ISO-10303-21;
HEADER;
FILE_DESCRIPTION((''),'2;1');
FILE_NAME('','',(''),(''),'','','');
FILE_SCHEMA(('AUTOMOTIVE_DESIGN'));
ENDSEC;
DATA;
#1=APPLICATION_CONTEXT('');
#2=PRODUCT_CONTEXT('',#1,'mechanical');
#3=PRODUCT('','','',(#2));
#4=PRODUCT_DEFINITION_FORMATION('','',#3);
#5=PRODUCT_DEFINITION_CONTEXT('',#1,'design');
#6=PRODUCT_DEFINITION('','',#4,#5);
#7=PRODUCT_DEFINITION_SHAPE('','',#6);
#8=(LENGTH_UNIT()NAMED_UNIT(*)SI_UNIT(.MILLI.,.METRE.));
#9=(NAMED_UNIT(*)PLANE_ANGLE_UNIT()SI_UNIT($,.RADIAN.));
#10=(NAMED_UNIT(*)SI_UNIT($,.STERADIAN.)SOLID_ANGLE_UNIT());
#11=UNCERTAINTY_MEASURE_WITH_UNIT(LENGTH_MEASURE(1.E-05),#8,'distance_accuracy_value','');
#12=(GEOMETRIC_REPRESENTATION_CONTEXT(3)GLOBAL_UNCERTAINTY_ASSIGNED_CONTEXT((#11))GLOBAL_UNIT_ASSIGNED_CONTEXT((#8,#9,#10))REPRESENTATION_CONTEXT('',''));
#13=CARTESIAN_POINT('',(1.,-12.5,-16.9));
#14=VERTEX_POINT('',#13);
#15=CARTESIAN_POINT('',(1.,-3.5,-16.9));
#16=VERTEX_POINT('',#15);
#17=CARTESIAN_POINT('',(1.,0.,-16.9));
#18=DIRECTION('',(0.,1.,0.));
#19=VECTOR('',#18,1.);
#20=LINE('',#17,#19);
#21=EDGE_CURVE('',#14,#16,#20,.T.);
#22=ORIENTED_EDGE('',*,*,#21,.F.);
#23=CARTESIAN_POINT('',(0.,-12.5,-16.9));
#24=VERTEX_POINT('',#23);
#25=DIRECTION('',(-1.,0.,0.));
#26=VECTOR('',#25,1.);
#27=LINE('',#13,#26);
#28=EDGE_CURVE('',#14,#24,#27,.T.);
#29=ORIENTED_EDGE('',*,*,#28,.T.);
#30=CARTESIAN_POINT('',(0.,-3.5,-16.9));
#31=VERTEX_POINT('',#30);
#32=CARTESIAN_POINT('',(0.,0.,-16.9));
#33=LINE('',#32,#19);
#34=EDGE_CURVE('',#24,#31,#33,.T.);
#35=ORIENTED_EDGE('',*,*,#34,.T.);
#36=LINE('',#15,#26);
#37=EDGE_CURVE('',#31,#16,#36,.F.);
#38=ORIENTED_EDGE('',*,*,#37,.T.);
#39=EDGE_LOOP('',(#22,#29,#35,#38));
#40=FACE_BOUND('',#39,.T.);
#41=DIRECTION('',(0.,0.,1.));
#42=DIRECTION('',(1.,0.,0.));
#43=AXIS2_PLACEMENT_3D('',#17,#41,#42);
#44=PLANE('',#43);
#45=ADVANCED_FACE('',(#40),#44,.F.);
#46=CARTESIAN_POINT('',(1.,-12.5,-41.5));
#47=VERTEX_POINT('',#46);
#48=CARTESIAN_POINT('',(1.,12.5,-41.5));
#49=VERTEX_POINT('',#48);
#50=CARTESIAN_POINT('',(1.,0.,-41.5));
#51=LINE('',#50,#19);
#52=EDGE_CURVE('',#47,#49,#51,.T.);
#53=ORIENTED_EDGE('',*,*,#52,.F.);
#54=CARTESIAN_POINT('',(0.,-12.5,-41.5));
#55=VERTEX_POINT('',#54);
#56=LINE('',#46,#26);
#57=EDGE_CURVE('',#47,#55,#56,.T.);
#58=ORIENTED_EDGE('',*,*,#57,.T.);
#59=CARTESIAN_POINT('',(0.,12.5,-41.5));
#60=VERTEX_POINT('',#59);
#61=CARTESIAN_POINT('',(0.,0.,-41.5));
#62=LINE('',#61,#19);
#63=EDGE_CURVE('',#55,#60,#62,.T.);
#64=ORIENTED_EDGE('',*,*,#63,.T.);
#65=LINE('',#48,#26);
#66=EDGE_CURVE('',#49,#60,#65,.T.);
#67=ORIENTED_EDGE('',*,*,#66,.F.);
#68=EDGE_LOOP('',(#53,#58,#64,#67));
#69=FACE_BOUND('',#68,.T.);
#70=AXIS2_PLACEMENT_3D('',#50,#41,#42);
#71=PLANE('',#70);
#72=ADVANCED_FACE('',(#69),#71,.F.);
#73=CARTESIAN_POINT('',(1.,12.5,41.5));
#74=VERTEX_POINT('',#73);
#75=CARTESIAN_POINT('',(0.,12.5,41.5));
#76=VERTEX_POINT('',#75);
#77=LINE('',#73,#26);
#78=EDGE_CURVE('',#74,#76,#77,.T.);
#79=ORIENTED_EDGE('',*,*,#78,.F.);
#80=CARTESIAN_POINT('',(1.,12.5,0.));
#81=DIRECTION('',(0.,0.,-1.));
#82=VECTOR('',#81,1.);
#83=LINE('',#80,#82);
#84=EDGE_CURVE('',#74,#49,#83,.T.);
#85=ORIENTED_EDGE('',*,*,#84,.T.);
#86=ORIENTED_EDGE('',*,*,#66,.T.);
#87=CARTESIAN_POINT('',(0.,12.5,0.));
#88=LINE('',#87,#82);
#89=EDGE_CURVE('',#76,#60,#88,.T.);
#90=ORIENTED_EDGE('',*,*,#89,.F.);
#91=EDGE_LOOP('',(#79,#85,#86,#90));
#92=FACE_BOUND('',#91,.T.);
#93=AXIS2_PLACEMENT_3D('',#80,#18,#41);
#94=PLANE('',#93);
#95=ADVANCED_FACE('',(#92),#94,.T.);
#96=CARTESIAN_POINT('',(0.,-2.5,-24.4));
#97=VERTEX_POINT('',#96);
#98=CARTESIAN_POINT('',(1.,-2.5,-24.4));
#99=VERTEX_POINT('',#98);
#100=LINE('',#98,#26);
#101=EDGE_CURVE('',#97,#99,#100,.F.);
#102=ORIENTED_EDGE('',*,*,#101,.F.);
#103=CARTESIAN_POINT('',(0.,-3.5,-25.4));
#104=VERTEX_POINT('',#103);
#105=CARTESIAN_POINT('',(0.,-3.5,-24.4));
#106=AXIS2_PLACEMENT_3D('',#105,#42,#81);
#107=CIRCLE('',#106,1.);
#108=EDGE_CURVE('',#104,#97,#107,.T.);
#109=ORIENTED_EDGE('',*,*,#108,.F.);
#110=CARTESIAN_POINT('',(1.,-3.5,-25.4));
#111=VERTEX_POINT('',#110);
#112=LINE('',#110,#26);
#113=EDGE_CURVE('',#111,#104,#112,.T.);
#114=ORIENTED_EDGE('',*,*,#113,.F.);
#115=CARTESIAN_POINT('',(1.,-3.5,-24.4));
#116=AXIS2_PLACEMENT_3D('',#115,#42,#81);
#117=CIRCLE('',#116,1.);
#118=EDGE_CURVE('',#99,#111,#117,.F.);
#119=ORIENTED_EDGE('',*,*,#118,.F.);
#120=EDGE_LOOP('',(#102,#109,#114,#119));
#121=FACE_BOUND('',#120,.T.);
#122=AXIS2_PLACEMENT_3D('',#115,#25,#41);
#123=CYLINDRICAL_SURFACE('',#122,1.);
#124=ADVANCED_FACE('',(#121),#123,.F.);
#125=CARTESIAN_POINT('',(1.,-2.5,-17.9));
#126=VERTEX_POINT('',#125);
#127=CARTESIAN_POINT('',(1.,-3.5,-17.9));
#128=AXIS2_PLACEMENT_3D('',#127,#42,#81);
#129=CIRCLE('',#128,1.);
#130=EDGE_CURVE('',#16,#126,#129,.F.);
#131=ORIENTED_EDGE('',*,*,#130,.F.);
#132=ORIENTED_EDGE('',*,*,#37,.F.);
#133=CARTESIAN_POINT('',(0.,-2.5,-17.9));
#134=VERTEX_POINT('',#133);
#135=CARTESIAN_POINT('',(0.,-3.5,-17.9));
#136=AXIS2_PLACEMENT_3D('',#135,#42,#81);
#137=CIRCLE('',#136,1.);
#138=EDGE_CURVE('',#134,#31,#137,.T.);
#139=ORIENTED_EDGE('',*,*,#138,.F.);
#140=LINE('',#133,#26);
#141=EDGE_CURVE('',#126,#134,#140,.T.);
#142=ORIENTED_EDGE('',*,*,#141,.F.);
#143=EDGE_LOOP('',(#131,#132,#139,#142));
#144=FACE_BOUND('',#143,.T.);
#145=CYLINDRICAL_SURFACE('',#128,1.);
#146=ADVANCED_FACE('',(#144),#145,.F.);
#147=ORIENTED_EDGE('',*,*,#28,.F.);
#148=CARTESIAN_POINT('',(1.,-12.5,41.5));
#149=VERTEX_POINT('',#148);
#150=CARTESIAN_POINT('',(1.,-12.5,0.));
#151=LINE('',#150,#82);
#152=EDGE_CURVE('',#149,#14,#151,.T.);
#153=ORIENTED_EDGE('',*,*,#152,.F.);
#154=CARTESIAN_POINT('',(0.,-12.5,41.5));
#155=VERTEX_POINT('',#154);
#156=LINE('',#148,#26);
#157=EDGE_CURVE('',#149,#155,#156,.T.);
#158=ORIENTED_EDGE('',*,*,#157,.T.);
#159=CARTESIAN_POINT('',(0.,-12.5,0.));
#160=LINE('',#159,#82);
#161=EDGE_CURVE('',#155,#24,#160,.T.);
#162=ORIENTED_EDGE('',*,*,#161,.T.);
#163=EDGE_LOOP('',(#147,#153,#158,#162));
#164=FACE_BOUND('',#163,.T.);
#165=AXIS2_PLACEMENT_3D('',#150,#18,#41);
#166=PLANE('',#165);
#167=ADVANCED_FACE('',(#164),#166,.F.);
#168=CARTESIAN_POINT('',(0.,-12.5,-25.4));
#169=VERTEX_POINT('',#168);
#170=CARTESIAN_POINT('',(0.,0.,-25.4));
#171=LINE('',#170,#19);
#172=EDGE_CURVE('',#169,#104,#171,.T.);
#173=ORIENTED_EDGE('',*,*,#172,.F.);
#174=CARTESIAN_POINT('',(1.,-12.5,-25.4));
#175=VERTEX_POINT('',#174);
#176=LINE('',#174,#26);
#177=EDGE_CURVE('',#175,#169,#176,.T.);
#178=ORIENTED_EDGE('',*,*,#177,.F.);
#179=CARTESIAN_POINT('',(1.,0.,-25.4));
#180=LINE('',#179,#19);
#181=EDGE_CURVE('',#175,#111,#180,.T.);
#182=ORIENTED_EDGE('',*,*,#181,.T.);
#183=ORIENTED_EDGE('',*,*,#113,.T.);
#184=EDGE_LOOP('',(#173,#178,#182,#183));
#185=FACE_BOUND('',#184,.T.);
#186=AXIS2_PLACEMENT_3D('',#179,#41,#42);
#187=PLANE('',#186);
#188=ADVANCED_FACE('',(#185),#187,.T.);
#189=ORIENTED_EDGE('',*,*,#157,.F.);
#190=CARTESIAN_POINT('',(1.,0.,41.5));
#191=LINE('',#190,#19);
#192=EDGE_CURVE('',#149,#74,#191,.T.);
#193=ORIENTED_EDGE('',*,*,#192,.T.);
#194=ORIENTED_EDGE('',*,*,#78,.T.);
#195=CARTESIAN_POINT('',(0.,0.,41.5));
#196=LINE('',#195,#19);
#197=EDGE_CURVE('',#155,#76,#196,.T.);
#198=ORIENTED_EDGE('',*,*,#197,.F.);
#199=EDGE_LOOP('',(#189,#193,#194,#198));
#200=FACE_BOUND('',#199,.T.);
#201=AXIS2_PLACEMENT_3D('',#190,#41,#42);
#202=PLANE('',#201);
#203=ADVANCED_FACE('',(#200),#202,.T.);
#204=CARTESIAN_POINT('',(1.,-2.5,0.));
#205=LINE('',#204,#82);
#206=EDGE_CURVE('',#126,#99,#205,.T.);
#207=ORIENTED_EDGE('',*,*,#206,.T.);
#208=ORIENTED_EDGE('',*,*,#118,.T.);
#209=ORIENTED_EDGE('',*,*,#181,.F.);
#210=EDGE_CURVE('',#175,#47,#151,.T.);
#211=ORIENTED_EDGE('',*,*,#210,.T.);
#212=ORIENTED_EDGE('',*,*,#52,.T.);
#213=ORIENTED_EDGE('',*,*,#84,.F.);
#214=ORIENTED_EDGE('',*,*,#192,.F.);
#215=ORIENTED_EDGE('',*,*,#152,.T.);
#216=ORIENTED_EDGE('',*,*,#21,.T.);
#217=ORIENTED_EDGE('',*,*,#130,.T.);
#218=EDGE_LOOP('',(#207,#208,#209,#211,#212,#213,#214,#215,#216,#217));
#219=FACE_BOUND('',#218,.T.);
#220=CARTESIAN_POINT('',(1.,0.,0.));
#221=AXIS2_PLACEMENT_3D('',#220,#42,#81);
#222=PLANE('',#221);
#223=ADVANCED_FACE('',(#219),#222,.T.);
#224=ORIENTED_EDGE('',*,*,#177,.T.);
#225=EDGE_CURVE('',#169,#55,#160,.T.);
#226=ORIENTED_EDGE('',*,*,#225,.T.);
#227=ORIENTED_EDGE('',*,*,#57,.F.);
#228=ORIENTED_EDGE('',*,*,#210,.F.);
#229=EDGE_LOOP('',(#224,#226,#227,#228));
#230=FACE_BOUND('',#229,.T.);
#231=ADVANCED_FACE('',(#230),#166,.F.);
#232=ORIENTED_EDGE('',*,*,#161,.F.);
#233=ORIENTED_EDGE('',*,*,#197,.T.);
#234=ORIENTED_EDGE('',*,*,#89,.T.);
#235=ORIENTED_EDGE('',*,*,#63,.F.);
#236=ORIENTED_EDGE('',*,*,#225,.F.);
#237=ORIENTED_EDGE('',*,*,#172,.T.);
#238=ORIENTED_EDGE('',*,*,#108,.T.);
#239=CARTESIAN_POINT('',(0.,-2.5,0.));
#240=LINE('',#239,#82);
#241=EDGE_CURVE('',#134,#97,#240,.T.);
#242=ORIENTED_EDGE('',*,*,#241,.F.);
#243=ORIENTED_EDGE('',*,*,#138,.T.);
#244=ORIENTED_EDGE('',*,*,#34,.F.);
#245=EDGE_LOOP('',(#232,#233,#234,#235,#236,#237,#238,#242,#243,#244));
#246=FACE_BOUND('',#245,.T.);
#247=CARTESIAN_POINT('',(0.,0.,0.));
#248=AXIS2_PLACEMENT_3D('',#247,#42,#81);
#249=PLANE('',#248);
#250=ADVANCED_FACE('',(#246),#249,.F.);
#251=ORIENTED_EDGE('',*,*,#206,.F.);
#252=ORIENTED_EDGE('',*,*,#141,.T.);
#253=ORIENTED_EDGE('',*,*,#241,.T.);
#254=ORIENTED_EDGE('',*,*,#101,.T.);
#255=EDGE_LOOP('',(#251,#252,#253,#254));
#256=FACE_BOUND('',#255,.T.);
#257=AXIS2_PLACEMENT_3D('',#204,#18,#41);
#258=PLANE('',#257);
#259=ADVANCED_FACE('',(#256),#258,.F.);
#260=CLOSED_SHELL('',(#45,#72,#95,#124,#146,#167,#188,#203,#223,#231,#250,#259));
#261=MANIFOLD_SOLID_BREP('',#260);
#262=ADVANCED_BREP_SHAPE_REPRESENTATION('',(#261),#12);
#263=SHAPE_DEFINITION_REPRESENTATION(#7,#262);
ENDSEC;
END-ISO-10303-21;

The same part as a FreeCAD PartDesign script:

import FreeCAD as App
import Part
import Sketcher
Q = App.Units.Quantity


def edges_at(feature, points):
    """Names of the edges that pass closest to the given points."""
    edges = feature.Shape.Edges
    near = lambda p: min(range(len(edges)), key=lambda i: edges[i].distToShape(Part.Vertex(*p))[0])
    return sorted({f"Edge{near(p) + 1}" for p in points})


def add_polygon(sketch, points):
    """Adds a closed chain of lines whose ends are joined by coincident constraints."""
    first, n = sketch.GeometryCount, len(points)
    for a, b in zip(points, points[1:] + points[:1]):
        sketch.addGeometry(Part.LineSegment(App.Vector(*a, 0), App.Vector(*b, 0)), False)
    for i in range(n):
        sketch.addConstraint(Sketcher.Constraint("Coincident", first + i, 2, first + (i + 1) % n, 1))

doc = App.newDocument("Part")
body = doc.addObject("PartDesign::Body", "Body")

sketch1 = body.newObject("Sketcher::SketchObject", "Sketch")
sketch1.AttachmentSupport = (doc.getObject("YZ_Plane"), [""])
sketch1.MapMode = "FlatFace"
add_polygon(sketch1, [(12, 42), (-12, 42), (-12, -17), (-2, -17), (-2, -25), (-12, -25), (-12, -42), (12, -42)])
sketch1.addConstraint([
    Sketcher.Constraint("Horizontal", 0),
    Sketcher.Constraint("Vertical", 1),
    Sketcher.Constraint("Horizontal", 2),
    Sketcher.Constraint("Vertical", 3),
    Sketcher.Constraint("Horizontal", 4),
    Sketcher.Constraint("Vertical", 5),
    Sketcher.Constraint("Horizontal", 6),
    Sketcher.Constraint("Vertical", 7),
    Sketcher.Constraint("Symmetric", 0, 2, 6, 2, -1, 1),
    Sketcher.Constraint("Vertical", 1, 2, 4, 2),
    Sketcher.Constraint("DistanceX", 0, 2, 0, 1, Q("25 mm")),
    Sketcher.Constraint("DistanceX", 2, 1, 2, 2, Q("10 mm")),
    Sketcher.Constraint("DistanceY", 7, 1, 7, 2, Q("83 mm")),
    Sketcher.Constraint("DistanceY", 1, 2, 1, 1, Q("58.4 mm")),
    Sketcher.Constraint("DistanceY", 3, 2, 3, 1, Q("8.5 mm")),
])
pad1 = body.newObject("PartDesign::Pad", "Pad")
pad1.Profile = sketch1
pad1.Length = 1
doc.recompute()

fillet = body.newObject("PartDesign::Fillet", "Fillet")
fillet.Base = (pad1, edges_at(pad1, [(0.5, -2.5, -25.4), (0.5, -2.5, -16.9)]))
fillet.Radius = 1

doc.recompute()
